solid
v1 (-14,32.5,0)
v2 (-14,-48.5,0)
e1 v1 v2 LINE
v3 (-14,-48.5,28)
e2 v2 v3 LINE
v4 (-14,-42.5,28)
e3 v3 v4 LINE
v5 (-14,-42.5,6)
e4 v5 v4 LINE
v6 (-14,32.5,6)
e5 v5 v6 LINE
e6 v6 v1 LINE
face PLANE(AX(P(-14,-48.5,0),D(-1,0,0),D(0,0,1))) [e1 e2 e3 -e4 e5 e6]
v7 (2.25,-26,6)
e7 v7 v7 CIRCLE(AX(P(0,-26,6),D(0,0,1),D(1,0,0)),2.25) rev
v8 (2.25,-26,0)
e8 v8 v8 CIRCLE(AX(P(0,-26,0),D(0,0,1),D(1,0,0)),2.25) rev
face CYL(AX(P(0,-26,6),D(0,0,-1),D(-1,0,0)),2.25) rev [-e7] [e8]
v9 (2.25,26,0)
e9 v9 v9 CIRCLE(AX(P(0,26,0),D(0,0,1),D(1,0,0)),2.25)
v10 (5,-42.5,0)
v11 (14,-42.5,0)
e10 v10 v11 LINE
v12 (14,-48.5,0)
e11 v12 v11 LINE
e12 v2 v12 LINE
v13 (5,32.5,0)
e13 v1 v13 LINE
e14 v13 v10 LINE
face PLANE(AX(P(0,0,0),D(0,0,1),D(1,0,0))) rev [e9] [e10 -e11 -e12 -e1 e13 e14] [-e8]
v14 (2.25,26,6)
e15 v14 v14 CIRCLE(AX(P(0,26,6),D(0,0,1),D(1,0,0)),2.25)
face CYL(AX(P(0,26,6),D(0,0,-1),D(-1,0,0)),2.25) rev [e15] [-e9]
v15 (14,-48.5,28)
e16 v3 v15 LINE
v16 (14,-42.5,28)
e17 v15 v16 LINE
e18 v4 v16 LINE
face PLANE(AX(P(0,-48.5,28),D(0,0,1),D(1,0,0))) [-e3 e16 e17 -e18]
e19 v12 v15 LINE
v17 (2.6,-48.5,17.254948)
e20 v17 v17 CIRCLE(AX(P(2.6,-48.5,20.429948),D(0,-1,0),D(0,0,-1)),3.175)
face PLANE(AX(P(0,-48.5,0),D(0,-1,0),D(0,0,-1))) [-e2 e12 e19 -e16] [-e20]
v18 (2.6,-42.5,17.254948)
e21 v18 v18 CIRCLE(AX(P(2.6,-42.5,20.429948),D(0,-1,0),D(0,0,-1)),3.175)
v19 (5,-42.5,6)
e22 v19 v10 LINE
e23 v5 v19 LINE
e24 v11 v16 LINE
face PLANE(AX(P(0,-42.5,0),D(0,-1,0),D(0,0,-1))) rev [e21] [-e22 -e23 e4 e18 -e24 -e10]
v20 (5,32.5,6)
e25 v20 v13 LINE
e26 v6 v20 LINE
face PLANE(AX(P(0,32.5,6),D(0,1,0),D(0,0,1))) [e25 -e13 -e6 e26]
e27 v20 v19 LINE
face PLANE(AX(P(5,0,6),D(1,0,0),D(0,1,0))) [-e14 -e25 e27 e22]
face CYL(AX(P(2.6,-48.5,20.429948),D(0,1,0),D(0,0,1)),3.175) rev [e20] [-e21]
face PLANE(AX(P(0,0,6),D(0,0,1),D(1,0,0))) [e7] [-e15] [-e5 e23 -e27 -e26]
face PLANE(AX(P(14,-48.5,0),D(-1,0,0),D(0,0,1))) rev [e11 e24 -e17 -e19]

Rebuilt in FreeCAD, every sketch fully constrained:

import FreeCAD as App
import Part
import Sketcher
Q = App.Units.Quantity


def add_polygon(sketch, points):
    """Adds a closed chain of lines whose ends are joined by coincident constraints."""
    first, n = sketch.GeometryCount, len(points)
    for a, b in zip(points, points[1:] + points[:1]):
        sketch.addGeometry(Part.LineSegment(App.Vector(*a, 0), App.Vector(*b, 0)), False)
    for i in range(n):
        sketch.addConstraint(Sketcher.Constraint("Coincident", first + i, 2, first + (i + 1) % n, 1))

doc = App.newDocument("Part")
params = doc.addObject("Spreadsheet::Sheet", "Params")
for row, (alias, value) in enumerate([
    ("sketch1_diameter", "4.5 mm"),
    ("sketch1_width", "10 mm"),
    ("sketch1_height", "75 mm"),
    ("pad1_length", "6 mm"),
    ("sketch2_diameter", "6.35 mm"),
    ("sketch2_width", "28 mm"),
    ("pad2_length", "6 mm"),
    ("sketch3_width", "75 mm"),
    ("sketch3_height", "6 mm"),
    ("pad3_length", "9 mm"),
], start=1):
    params.set(f"A{row}", alias)
    params.set(f"B{row}", "=" + value)
    params.setAlias(f"B{row}", alias)

body = doc.addObject("PartDesign::Body", "Body")

sketch1 = body.newObject("Sketcher::SketchObject", "Sketch")
sketch1.AttachmentSupport = (doc.getObject("XY_Plane"), [""])
sketch1.MapMode = "FlatFace"
add_polygon(sketch1, [(-5, -42.5), (5, -42.5), (5, 32.5), (-5, 32.5)])
sketch1.addGeometry(Part.Circle(App.Vector(0, -26, 0), App.Vector(0, 0, 1), 2.2), False)
sketch1.addGeometry(Part.Circle(App.Vector(0, 26, 0), App.Vector(0, 0, 1), 2.2), False)
sketch1.addConstraint(Sketcher.Constraint("Horizontal", 0))
sketch1.addConstraint(Sketcher.Constraint("Vertical", 1))
sketch1.addConstraint(Sketcher.Constraint("Horizontal", 2))
sketch1.addConstraint(Sketcher.Constraint("Vertical", 3))
sketch1.addConstraint(Sketcher.Constraint("Equal", 4, 5))
sketch1.addConstraint(Sketcher.Constraint("Symmetric", 4, 3, 5, 3, -1, 1))
sketch1.addConstraint(Sketcher.Constraint("PointOnObject", 4, 3, -2))
sketch1.addConstraint(Sketcher.Constraint("Diameter", 4, Q("4.5 mm")))
sketch1.addConstraint(Sketcher.Constraint("DistanceX", 0, 1, 0, 2, Q("10 mm")))
sketch1.addConstraint(Sketcher.Constraint("DistanceY", 1, 1, 1, 2, Q("75 mm")))
sketch1.addConstraint(Sketcher.Constraint("DistanceY", 4, 3, -1, 1, Q("26 mm")))
sketch1.addConstraint(Sketcher.Constraint("DistanceX", -1, 1, 0, 2, Q("5 mm")))
sketch1.addConstraint(Sketcher.Constraint("DistanceY", 0, 2, -1, 1, Q("42.5 mm")))
sketch1.setExpression("Constraints[11]", "Params.sketch1_diameter")
sketch1.setExpression("Constraints[12]", "Params.sketch1_width")
sketch1.setExpression("Constraints[13]", "Params.sketch1_height")
pad1 = body.newObject("PartDesign::Pad", "Pad")
pad1.Profile = sketch1
pad1.setExpression("Length", "Params.pad1_length")
body2 = doc.addObject("PartDesign::Body", "Body001")

sketch2 = body2.newObject("Sketcher::SketchObject", "Sketch001")
sketch2.AttachmentSupport = (doc.getObject("XZ_Plane001"), [""])
sketch2.MapMode = "FlatFace"
sketch2.AttachmentOffset = App.Placement(App.Vector(0, 0, 42.5), App.Rotation())
add_polygon(sketch2, [(-14, 28), (-14, 0), (14, 0), (14, 28)])
sketch2.addGeometry(Part.Circle(App.Vector(2.6, 20.4, 0), App.Vector(0, 0, 1), 3.2), False)
sketch2.addConstraint(Sketcher.Constraint("Vertical", 0))
sketch2.addConstraint(Sketcher.Constraint("Horizontal", 1))
sketch2.addConstraint(Sketcher.Constraint("Vertical", 2))
sketch2.addConstraint(Sketcher.Constraint("Horizontal", 3))
sketch2.addConstraint(Sketcher.Constraint("Symmetric", 0, 2, 1, 2, -1, 1))
sketch2.addConstraint(Sketcher.Constraint("Equal", 3, 0))
sketch2.addConstraint(Sketcher.Constraint("Diameter", 4, Q("6.35 mm")))
sketch2.addConstraint(Sketcher.Constraint("DistanceX", 1, 1, 1, 2, Q("28 mm")))
sketch2.addConstraint(Sketcher.Constraint("DistanceX", -1, 1, 4, 3, Q("2.6 mm")))
sketch2.addConstraint(Sketcher.Constraint("DistanceY", -1, 1, 4, 3, Q("20.429948 mm")))
sketch2.setExpression("Constraints[10]", "Params.sketch2_diameter")
sketch2.setExpression("Constraints[11]", "Params.sketch2_width")
pad2 = body2.newObject("PartDesign::Pad", "Pad001")
pad2.Profile = sketch2
pad2.setExpression("Length", "Params.pad2_length")
doc.recompute()

boolean = body.newObject("PartDesign::Boolean", "Boolean")
boolean.Type = "Fuse"
boolean.addObjects([body2])

sketch3 = body.newObject("Sketcher::SketchObject", "Sketch002")
sketch3.AttachmentSupport = (doc.getObject("YZ_Plane"), [""])
sketch3.MapMode = "FlatFace"
sketch3.AttachmentOffset = App.Placement(App.Vector(0, 0, -5), App.Rotation())
add_polygon(sketch3, [(32, 0), (-42, 0), (-42, 6), (32, 6)])
sketch3.addConstraint(Sketcher.Constraint("Horizontal", 0))
sketch3.addConstraint(Sketcher.Constraint("Vertical", 1))
sketch3.addConstraint(Sketcher.Constraint("Horizontal", 2))
sketch3.addConstraint(Sketcher.Constraint("Vertical", 3))
sketch3.addConstraint(Sketcher.Constraint("PointOnObject", 0, 2, -1))
sketch3.addConstraint(Sketcher.Constraint("DistanceX", 0, 2, 0, 1, Q("75 mm")))
sketch3.addConstraint(Sketcher.Constraint("DistanceY", 1, 1, 1, 2, Q("6 mm")))
sketch3.addConstraint(Sketcher.Constraint("DistanceX", 0, 2, -1, 1, Q("42.5 mm")))
sketch3.setExpression("Constraints[9]", "Params.sketch3_width")
sketch3.setExpression("Constraints[10]", "Params.sketch3_height")
pad3 = body.newObject("PartDesign::Pad", "Pad002")
pad3.Profile = sketch3
pad3.setExpression("Length", "Params.pad3_length")
pad3.Reversed = True

doc.recompute()
